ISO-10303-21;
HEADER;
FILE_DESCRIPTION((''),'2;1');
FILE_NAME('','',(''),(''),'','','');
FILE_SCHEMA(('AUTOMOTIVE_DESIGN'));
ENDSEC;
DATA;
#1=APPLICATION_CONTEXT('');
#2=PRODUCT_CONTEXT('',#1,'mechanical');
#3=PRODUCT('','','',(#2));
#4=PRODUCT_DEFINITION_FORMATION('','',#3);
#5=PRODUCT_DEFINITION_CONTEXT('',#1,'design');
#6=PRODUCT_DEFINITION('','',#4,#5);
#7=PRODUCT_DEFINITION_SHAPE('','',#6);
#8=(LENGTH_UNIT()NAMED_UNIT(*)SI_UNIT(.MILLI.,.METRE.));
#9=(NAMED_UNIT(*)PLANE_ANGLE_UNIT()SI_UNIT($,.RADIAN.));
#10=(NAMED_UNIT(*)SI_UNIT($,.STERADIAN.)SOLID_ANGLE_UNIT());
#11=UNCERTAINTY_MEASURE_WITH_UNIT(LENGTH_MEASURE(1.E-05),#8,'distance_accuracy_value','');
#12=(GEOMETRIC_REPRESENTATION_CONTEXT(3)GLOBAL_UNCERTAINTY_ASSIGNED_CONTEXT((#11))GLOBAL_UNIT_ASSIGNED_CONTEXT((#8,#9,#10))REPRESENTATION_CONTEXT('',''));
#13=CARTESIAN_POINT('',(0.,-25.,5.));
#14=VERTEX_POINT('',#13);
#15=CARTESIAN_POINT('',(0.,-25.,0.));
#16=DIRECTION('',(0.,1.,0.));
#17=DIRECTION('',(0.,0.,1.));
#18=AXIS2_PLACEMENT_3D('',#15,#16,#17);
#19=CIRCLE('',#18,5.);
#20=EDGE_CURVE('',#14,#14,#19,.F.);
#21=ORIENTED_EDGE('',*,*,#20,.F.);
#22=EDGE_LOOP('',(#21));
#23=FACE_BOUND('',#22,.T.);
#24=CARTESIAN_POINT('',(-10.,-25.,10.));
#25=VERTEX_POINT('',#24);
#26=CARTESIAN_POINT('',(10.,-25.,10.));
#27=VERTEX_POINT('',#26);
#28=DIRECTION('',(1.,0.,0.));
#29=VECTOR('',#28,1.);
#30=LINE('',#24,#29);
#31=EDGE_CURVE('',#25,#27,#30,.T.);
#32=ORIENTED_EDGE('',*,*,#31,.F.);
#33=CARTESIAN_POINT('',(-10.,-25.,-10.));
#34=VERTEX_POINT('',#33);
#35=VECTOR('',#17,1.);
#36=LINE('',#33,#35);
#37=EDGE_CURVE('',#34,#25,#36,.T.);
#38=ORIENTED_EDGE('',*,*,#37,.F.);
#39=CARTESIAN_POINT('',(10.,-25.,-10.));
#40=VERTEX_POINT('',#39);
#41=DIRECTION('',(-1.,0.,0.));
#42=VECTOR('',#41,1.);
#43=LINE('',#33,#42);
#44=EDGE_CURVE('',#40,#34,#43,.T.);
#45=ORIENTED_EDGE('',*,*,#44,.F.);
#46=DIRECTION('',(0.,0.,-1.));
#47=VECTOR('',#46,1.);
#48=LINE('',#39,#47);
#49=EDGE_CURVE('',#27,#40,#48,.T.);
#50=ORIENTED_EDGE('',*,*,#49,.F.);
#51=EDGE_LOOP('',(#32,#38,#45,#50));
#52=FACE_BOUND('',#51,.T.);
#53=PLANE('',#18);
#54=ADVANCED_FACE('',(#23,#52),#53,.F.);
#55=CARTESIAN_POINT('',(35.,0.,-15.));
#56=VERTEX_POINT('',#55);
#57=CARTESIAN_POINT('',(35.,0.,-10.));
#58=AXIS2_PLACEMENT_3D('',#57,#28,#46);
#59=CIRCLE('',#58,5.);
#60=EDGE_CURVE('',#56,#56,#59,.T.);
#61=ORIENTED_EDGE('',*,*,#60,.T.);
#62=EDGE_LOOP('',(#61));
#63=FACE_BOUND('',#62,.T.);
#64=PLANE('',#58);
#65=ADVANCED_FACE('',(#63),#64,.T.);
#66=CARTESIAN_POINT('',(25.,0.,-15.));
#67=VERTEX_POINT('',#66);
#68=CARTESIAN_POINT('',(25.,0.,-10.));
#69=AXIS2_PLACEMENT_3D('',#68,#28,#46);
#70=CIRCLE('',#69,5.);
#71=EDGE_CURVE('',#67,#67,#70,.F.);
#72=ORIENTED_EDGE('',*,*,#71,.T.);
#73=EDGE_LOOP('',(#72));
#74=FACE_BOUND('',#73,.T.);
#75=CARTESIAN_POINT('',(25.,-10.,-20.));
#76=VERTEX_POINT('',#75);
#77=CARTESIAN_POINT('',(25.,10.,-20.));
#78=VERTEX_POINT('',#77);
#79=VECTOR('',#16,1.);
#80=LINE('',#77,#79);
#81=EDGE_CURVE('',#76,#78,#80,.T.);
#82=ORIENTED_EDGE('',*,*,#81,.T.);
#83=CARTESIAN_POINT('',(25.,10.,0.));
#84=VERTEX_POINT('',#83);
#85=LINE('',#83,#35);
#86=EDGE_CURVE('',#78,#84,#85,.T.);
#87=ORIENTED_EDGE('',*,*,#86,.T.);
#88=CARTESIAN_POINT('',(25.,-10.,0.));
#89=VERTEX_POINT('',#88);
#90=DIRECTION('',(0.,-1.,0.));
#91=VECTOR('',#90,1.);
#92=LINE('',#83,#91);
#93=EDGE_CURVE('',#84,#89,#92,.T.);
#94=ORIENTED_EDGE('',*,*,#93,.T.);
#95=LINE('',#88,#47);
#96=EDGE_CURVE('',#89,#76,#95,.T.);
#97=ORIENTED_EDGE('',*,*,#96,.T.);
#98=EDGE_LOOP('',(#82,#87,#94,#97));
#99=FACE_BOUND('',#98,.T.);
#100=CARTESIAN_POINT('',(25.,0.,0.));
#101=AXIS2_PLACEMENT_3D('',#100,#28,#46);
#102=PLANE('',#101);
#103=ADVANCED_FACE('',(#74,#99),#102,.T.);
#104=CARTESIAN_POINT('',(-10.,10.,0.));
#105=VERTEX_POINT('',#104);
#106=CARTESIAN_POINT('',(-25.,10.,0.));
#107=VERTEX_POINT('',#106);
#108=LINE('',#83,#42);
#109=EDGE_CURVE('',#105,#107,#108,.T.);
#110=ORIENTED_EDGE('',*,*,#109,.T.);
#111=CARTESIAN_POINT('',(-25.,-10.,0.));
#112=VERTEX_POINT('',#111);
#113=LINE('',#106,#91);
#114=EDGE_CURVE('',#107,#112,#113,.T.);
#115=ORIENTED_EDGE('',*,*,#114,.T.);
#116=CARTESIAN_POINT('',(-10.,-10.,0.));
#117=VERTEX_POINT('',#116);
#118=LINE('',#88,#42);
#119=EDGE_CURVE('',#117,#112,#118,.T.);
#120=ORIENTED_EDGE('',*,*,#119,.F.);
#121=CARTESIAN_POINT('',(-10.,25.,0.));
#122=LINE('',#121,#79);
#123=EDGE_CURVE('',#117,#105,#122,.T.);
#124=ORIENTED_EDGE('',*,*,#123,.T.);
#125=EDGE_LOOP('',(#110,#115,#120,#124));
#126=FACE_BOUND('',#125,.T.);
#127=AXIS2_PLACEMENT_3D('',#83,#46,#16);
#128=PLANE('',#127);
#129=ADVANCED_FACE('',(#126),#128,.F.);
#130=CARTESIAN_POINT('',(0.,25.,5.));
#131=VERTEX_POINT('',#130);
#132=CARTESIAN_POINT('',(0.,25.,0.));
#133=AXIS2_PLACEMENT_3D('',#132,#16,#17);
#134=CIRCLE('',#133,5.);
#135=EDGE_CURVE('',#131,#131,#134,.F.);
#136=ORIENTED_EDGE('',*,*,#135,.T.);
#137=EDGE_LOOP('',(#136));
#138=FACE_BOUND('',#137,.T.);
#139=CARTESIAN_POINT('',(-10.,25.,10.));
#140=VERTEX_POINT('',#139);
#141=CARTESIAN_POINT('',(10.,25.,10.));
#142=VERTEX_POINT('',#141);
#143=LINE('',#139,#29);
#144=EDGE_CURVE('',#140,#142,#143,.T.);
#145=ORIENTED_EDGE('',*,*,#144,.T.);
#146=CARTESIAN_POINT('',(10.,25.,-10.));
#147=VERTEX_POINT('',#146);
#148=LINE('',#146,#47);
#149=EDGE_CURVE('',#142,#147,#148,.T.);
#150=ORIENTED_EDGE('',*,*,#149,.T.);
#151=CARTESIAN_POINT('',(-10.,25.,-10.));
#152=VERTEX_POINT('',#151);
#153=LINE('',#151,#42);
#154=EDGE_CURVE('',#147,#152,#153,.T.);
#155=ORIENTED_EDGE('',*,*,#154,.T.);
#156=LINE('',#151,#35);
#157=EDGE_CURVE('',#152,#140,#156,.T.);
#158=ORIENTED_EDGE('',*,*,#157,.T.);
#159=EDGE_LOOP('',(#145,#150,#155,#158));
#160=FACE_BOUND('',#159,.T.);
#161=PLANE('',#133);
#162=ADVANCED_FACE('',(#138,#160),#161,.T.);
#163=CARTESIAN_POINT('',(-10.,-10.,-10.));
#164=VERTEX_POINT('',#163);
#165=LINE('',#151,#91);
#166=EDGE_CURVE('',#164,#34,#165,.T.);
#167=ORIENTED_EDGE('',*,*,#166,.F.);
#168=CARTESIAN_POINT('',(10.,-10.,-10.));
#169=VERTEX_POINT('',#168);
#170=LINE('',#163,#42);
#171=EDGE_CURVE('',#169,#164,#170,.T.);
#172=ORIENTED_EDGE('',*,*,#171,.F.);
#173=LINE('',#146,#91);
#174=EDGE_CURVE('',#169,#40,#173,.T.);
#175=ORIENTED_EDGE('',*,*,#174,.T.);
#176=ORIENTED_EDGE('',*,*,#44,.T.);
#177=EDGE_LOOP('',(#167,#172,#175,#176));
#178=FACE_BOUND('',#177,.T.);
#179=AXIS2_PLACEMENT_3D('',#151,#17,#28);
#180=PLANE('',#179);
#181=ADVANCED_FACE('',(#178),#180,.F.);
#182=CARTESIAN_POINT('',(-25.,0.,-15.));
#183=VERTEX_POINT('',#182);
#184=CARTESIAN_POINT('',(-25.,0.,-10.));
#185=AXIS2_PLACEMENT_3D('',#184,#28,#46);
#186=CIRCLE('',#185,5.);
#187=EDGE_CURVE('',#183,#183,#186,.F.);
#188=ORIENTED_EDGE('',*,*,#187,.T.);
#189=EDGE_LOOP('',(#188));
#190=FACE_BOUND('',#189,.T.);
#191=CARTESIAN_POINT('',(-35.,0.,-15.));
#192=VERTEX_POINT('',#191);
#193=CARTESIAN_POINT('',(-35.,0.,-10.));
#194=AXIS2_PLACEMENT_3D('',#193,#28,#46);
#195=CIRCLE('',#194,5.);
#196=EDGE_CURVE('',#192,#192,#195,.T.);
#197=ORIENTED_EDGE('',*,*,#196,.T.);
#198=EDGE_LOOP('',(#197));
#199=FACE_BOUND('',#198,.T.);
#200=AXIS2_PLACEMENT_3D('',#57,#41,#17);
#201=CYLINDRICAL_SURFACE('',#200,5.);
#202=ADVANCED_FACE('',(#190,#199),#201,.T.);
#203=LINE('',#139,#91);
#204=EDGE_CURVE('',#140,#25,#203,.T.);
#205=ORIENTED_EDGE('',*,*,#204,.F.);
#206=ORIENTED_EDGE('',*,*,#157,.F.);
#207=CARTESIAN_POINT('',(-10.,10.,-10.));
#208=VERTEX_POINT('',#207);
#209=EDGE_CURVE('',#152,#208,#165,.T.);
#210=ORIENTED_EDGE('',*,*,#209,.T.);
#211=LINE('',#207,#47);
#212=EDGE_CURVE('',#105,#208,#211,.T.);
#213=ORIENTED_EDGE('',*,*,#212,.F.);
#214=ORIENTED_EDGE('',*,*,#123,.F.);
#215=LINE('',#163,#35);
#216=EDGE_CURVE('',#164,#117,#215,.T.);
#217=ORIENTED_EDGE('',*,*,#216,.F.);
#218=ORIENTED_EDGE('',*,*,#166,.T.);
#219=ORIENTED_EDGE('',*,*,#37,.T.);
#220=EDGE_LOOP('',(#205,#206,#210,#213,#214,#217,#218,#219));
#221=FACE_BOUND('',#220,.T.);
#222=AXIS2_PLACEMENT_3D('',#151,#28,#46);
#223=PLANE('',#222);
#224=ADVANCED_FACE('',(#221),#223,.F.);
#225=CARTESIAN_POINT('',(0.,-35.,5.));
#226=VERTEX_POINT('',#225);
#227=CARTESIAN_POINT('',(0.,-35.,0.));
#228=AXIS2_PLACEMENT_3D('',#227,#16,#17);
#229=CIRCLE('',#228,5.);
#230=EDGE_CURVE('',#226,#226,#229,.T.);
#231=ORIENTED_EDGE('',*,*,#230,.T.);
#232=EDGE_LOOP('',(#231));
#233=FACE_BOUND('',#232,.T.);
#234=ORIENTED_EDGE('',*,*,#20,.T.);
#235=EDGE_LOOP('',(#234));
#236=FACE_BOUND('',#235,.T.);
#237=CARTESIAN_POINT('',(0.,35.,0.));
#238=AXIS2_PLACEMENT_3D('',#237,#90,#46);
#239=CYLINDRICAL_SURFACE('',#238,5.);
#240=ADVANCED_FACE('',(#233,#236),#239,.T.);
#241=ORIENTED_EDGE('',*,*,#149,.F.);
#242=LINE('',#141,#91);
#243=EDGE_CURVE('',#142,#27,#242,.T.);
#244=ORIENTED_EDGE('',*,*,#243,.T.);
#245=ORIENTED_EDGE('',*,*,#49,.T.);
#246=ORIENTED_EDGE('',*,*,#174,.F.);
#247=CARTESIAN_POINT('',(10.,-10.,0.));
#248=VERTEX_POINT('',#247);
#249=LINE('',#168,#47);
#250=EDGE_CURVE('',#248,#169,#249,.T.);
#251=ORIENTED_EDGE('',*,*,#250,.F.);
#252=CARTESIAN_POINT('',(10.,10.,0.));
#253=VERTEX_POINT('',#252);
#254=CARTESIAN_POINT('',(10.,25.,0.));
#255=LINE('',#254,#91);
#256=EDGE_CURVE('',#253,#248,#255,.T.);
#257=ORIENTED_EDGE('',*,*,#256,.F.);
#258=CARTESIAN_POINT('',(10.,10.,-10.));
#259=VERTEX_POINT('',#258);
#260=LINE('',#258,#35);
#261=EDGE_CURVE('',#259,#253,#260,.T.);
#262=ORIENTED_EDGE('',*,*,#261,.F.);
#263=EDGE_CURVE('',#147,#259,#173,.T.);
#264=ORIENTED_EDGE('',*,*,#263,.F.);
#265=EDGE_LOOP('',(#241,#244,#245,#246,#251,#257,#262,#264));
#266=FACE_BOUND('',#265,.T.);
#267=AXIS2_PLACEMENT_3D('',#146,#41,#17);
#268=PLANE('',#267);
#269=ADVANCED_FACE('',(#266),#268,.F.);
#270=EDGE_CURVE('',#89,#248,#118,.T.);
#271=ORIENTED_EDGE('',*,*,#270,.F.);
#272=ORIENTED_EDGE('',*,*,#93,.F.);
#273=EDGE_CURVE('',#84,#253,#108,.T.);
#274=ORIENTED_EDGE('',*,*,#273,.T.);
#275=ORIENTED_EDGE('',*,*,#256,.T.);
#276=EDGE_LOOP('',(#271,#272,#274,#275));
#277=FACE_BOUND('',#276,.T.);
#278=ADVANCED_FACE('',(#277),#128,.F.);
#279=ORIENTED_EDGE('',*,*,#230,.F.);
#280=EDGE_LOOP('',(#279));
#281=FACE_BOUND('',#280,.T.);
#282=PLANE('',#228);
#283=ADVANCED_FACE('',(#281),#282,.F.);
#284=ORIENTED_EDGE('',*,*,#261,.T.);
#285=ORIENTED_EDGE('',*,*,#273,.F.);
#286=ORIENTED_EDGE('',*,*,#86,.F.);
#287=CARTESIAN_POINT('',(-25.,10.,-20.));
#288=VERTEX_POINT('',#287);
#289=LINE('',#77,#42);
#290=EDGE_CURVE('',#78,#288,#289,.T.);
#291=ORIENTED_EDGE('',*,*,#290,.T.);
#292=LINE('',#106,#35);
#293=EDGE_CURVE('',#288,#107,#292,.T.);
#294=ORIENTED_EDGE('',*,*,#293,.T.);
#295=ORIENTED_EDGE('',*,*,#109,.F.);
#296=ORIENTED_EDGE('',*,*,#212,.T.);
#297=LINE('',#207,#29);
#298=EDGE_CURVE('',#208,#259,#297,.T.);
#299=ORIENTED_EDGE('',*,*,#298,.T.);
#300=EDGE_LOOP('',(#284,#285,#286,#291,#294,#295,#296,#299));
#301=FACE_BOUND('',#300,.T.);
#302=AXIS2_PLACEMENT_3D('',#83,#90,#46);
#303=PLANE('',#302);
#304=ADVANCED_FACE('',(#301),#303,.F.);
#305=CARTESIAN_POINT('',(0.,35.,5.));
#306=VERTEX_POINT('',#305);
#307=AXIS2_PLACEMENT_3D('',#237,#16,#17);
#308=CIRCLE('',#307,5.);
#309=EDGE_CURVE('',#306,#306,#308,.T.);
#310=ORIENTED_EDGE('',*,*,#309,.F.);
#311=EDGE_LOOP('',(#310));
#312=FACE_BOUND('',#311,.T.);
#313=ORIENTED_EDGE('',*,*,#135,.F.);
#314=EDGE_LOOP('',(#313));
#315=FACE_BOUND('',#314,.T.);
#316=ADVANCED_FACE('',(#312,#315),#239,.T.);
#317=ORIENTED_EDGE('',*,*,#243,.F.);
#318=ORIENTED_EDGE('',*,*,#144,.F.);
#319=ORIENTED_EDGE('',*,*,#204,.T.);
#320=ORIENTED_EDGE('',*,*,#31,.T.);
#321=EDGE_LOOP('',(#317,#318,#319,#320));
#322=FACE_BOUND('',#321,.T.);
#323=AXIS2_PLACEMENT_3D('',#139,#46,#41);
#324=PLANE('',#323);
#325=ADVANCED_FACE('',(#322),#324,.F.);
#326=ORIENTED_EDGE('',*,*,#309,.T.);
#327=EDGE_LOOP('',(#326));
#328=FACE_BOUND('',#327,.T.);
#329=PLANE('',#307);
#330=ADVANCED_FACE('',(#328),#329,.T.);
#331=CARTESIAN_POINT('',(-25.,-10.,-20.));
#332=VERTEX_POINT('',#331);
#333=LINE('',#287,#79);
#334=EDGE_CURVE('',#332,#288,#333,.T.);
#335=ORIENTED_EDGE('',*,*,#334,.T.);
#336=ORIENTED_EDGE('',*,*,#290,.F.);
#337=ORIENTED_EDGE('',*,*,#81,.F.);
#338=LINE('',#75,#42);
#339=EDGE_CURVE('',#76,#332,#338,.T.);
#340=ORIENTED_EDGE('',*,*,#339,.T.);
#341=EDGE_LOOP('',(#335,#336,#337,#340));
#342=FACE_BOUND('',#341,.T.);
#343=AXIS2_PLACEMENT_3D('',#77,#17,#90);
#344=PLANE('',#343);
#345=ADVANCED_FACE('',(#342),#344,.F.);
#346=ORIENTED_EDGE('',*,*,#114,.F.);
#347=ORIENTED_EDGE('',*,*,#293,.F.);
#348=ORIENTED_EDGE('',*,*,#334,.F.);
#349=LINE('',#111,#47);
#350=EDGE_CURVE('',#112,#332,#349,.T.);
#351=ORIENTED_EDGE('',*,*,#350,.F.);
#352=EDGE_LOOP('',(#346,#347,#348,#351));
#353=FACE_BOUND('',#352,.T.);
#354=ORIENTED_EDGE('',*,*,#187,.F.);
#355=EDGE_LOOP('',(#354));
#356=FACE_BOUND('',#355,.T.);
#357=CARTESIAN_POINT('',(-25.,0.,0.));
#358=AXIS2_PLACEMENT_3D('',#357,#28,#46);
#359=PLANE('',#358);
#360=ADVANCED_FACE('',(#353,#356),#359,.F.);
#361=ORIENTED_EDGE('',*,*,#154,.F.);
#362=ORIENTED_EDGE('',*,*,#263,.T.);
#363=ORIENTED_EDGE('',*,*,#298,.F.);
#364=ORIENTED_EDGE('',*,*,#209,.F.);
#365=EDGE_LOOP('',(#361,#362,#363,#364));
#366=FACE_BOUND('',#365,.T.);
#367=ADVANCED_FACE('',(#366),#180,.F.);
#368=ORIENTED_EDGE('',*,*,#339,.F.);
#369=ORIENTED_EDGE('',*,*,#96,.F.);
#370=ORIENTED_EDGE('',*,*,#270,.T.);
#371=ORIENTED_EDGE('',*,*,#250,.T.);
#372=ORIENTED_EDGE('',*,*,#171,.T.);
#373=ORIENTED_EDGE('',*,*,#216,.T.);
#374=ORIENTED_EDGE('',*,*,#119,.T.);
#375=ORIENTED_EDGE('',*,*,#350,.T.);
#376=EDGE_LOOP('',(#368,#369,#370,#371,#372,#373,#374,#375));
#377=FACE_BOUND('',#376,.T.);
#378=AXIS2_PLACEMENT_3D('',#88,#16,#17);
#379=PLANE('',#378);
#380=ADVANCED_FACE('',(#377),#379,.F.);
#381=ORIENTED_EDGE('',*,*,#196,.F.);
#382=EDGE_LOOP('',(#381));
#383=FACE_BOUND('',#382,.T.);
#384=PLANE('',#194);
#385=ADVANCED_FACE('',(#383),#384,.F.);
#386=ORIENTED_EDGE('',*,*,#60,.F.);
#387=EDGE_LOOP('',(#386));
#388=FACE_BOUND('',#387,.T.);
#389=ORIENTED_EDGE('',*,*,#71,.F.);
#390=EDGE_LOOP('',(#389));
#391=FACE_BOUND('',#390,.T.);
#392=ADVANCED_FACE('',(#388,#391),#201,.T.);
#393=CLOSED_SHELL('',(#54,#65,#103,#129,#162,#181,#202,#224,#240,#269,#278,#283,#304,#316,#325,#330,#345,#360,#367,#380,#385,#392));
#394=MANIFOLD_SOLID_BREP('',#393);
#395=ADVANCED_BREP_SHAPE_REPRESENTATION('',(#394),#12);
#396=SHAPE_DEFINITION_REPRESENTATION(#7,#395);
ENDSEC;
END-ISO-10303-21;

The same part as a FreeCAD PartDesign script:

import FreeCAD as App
import Part
import Sketcher
from FreeCAD import Vector
Q = App.Units.Quantity


def add_polygon(sketch, points):
    """Adds a closed chain of lines whose ends are joined by coincident constraints."""
    first, n = sketch.GeometryCount, len(points)
    for a, b in zip(points, points[1:] + points[:1]):
        sketch.addGeometry(Part.LineSegment(App.Vector(*a, 0), App.Vector(*b, 0)), False)
    for i in range(n):
        sketch.addConstraint(Sketcher.Constraint("Coincident", first + i, 2, first + (i + 1) % n, 1))

doc = App.newDocument("Part")
body = doc.addObject("PartDesign::Body", "Body")

# Sketch on XZ plane
sketch1 = body.newObject("Sketcher::SketchObject", "Sketch")
sketch1.AttachmentSupport = (doc.getObject("XZ_Plane"), [""])
sketch1.MapMode = "FlatFace"
add_polygon(sketch1, [(-10, -10), (-10, 10), (10, 10), (10, -10)])  # lines 0-3
sketch1.addConstraint(Sketcher.Constraint("Vertical", 0))
sketch1.addConstraint(Sketcher.Constraint("Horizontal", 1))
sketch1.addConstraint(Sketcher.Constraint("Vertical", 2))
sketch1.addConstraint(Sketcher.Constraint("Horizontal", 3))
sketch1.addConstraint(Sketcher.Constraint("Symmetric", 0, 2, 2, 2, -1, 1))
sketch1.addConstraint(Sketcher.Constraint("Equal", 3, 0))
sketch1.addConstraint(Sketcher.Constraint("DistanceX", 1, 1, 1, 2, Q("20 mm")))
pad1 = body.newObject("PartDesign::Pad", "Pad")
pad1.Profile = sketch1
pad1.Length = 50
pad1.Midplane = True

# Sketch on YZ plane
sketch2 = body.newObject("Sketcher::SketchObject", "Sketch001")
sketch2.AttachmentSupport = (doc.getObject("YZ_Plane"), [""])
sketch2.MapMode = "FlatFace"
add_polygon(sketch2, [(10, 0), (-10, 0), (-10, -20), (10, -20)])  # lines 0-3
sketch2.addConstraint(Sketcher.Constraint("Horizontal", 0))
sketch2.addConstraint(Sketcher.Constraint("Vertical", 1))
sketch2.addConstraint(Sketcher.Constraint("Horizontal", 2))
sketch2.addConstraint(Sketcher.Constraint("Vertical", 3))
sketch2.addConstraint(Sketcher.Constraint("Symmetric", 0, 2, 3, 2, -1, 1))
sketch2.addConstraint(Sketcher.Constraint("Equal", 2, 1))
sketch2.addConstraint(Sketcher.Constraint("DistanceX", 0, 2, 0, 1, Q("20 mm")))
pad2 = body.newObject("PartDesign::Pad", "Pad001")
pad2.Profile = sketch2
pad2.Length = 50
pad2.Midplane = True

# Sketch on XZ plane
sketch3 = body.newObject("Sketcher::SketchObject", "Sketch002")
sketch3.AttachmentSupport = (doc.getObject("XZ_Plane"), [""])
sketch3.MapMode = "FlatFace"
sketch3.addGeometry(Part.Circle(Vector(0, 0, 0), Vector(0, 0, 1), 5), False)
sketch3.addConstraint(Sketcher.Constraint("Coincident", 0, 3, -1, 1))
sketch3.addConstraint(Sketcher.Constraint("Diameter", 0, Q("10 mm")))
pad3 = body.newObject("PartDesign::Pad", "Pad002")
pad3.Profile = sketch3
pad3.Length = 70
pad3.Midplane = True

# Sketch on YZ plane
sketch4 = body.newObject("Sketcher::SketchObject", "Sketch003")
sketch4.AttachmentSupport = (doc.getObject("YZ_Plane"), [""])
sketch4.MapMode = "FlatFace"
sketch4.addGeometry(Part.Circle(Vector(0, -10, 0), Vector(0, 0, 1), 5), False)
sketch4.addConstraint(Sketcher.Constraint("PointOnObject", 0, 3, -2))
sketch4.addConstraint(Sketcher.Constraint("Diameter", 0, Q("10 mm")))
sketch4.addConstraint(Sketcher.Constraint("DistanceY", 0, 3, -1, 1, Q("10 mm")))
pad4 = body.newObject("PartDesign::Pad", "Pad003")
pad4.Profile = sketch4
pad4.Length = 70
pad4.Midplane = True

doc.recompute()
